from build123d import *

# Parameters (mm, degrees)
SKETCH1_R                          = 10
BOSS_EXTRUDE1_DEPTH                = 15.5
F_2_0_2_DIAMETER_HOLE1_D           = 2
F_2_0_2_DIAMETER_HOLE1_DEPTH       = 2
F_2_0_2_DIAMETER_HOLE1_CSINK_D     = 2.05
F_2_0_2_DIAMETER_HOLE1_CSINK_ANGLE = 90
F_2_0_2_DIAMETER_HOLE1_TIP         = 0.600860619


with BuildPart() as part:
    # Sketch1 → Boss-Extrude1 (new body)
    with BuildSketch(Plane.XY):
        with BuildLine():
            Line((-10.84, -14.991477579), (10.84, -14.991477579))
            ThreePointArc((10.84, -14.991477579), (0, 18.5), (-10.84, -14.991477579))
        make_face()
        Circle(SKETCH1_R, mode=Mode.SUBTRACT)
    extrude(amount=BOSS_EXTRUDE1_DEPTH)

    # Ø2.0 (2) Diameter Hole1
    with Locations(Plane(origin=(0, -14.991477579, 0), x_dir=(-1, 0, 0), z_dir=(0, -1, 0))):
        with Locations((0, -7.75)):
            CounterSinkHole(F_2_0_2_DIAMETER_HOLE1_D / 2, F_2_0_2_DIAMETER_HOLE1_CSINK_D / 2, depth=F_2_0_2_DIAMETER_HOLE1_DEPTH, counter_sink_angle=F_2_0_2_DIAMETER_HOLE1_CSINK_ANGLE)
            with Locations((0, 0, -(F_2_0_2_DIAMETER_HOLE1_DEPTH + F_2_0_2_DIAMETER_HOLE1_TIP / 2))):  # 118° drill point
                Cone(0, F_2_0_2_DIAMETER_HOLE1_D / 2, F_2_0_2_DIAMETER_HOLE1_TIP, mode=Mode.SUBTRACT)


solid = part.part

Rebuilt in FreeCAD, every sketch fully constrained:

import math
import FreeCAD as App
import Part
import Sketcher

V = App.Vector
Q = App.Units.Quantity

doc = App.newDocument("Part")
params = doc.addObject("Spreadsheet::Sheet", "Params")
for row, (alias, value) in enumerate([
    ("sketch1_diameter", "20 mm"),
    ("sketch1_radius", "18.5 mm"),
    ("sketch1_width", "21.68 mm"),
    ("pad1_length", "15.5 mm"),
    ("sketch2_diameter", "2 mm"),
    ("hole_diameter", "2 mm"),
    ("hole_depth", "2 mm"),
    ("hole_csink_diameter", "2.05 mm"),
], start=1):
    params.set(f"A{row}", alias)
    params.set(f"B{row}", "=" + value)
    params.setAlias(f"B{row}", alias)

body = doc.addObject("PartDesign::Body", "Body")

# Sketch on XY plane
sketch1 = doc.addObject("Sketcher::SketchObject", "Sketch")
body.addObject(sketch1)
sketch1.AttachmentSupport = (doc.XY_Plane, [""])
sketch1.MapMode = "FlatFace"
sketch1.addGeometry(Part.LineSegment(V(-11, -15, 0), V(11, -15, 0)), False)
sketch1.addGeometry(Part.ArcOfCircle(Part.Circle(V(0, 0, 0), V(0, 0, 1), 18), math.radians(-54), math.radians(234)), False)
sketch1.addGeometry(Part.Circle(V(0, 0, 0), V(0, 0, 1), 10), False)
sketch1.addConstraint(Sketcher.Constraint("Coincident", 0, 1, 1, 2))
sketch1.addConstraint(Sketcher.Constraint("Coincident", 1, 1, 0, 2))
sketch1.addConstraint(Sketcher.Constraint("Horizontal", 0))
sketch1.addConstraint(Sketcher.Constraint("Coincident", 1, 3, -1, 1))
sketch1.addConstraint(Sketcher.Constraint("Coincident", 2, 3, -1, 1))
sketch1.addConstraint(Sketcher.Constraint("Diameter", 2, Q("20 mm")))
sketch1.addConstraint(Sketcher.Constraint("Radius", 1, Q("18.5 mm")))
sketch1.addConstraint(Sketcher.Constraint("DistanceX", 0, 1, 0, 2, Q("21.68 mm")))
sketch1.setExpression("Constraints[5]", "Params.sketch1_diameter")
sketch1.setExpression("Constraints[6]", "Params.sketch1_radius")
sketch1.setExpression("Constraints[7]", "Params.sketch1_width")
pad1 = doc.addObject("PartDesign::Pad", "Pad")
body.addObject(pad1)
pad1.Profile = sketch1
pad1.setExpression("Length", "Params.pad1_length")

# Sketch on XZ plane
sketch2 = doc.addObject("Sketcher::SketchObject", "Sketch001")
body.addObject(sketch2)
sketch2.AttachmentSupport = (doc.XZ_Plane, [""])
sketch2.MapMode = "FlatFace"
sketch2.AttachmentOffset = App.Placement(V(0, 0, 14.991478), App.Rotation())
sketch2.addGeometry(Part.Circle(V(0, 7.8, 0), V(0, 0, 1), 1), False)
sketch2.addConstraint(Sketcher.Constraint("PointOnObject", 0, 3, -2))
sketch2.addConstraint(Sketcher.Constraint("Diameter", 0, Q("2 mm")))
sketch2.addConstraint(Sketcher.Constraint("DistanceY", -1, 1, 0, 3, Q("7.75 mm")))
sketch2.setExpression("Constraints[1]", "Params.sketch2_diameter")
doc.recompute()
hole = doc.addObject("PartDesign::Hole", "Hole")
body.addObject(hole)
hole.Profile = sketch2
hole.ThreadType = "None"
hole.setExpression("Diameter", "Params.hole_diameter")
hole.DepthType = "Dimension"
hole.setExpression("Depth", "Params.hole_depth")
hole.DrillPoint = "Angled"
hole.DrillPointAngle = 118
hole.HoleCutType = "Countersink"
hole.setExpression("HoleCutDiameter", "Params.hole_csink_diameter")
hole.HoleCutCountersinkAngle = 90

doc.recompute()
